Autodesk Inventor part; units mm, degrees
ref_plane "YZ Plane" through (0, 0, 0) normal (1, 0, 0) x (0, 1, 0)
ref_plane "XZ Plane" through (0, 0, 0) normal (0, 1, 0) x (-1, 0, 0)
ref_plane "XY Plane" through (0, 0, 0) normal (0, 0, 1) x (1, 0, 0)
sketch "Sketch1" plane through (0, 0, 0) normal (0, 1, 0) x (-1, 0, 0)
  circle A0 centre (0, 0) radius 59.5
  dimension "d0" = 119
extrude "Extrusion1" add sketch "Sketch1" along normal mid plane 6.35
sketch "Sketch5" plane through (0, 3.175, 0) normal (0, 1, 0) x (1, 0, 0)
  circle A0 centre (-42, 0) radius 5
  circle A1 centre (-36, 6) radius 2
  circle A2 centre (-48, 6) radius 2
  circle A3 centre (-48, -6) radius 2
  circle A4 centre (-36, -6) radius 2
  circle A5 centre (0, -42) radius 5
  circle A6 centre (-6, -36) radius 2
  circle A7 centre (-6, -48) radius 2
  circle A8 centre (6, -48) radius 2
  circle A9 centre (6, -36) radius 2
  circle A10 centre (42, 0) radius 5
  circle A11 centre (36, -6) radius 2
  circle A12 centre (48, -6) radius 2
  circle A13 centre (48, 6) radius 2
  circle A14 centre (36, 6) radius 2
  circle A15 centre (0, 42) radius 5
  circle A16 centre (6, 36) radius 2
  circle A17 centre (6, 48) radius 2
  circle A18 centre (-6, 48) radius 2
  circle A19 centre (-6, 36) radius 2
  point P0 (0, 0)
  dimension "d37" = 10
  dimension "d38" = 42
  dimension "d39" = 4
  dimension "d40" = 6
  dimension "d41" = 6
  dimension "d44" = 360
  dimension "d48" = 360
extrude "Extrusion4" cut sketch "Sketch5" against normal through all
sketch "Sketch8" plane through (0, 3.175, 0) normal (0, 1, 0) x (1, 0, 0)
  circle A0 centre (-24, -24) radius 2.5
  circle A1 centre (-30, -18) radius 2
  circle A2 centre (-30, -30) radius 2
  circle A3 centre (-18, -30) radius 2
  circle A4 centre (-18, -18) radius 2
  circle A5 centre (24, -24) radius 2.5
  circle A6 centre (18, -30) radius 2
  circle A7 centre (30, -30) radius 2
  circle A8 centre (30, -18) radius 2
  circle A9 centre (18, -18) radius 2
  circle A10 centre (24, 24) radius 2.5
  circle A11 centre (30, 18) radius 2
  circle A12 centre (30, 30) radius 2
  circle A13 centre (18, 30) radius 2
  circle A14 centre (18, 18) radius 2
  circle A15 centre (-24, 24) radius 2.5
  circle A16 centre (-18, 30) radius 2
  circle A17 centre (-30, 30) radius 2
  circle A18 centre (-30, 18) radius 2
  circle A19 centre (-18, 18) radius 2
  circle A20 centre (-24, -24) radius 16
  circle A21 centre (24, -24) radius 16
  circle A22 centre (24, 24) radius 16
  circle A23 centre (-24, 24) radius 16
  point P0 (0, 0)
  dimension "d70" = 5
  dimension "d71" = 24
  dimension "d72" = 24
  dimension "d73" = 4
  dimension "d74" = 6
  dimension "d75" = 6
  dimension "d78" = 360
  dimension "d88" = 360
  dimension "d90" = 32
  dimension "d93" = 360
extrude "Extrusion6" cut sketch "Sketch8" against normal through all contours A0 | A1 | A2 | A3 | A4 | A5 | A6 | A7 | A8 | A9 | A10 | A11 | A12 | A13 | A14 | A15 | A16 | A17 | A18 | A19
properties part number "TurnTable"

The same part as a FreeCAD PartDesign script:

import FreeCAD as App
import Part
import Sketcher
from FreeCAD import Vector

doc = App.newDocument("Part")
body = doc.addObject("PartDesign::Body", "Body")

sketch1 = doc.addObject("Sketcher::SketchObject", "Sketch")
body.addObject(sketch1)
sketch1.AttachmentSupport = (doc.XZ_Plane, [""])
sketch1.MapMode = "FlatFace"
sketch1.addGeometry(Part.Circle(Vector(0, 0, 0), Vector(0, 0, 1), 60), False)
sketch1.addConstraint(Sketcher.Constraint("Coincident", 0, 3, -1, 1))
sketch1.addConstraint(Sketcher.Constraint("Diameter", 0, 119.0))
pad1 = doc.addObject("PartDesign::Pad", "Pad")
body.addObject(pad1)
pad1.Profile = sketch1
pad1.Length = 6.35
pad1.Midplane = True

sketch2 = doc.addObject("Sketcher::SketchObject", "Sketch001")
body.addObject(sketch2)
sketch2.AttachmentSupport = (doc.XZ_Plane, [""])
sketch2.MapMode = "FlatFace"
sketch2.AttachmentOffset = App.Placement(Vector(0, 0, -3.175), App.Rotation())
sketch2.addGeometry(Part.Circle(Vector(-42, 0, 0), Vector(0, 0, 1), 5), False)
sketch2.addGeometry(Part.Circle(Vector(-36, -6, 0), Vector(0, 0, 1), 2), False)
sketch2.addGeometry(Part.Circle(Vector(-48, -6, 0), Vector(0, 0, 1), 2), False)
sketch2.addGeometry(Part.Circle(Vector(-48, 6, 0), Vector(0, 0, 1), 2), False)
sketch2.addGeometry(Part.Circle(Vector(-36, 6, 0), Vector(0, 0, 1), 2), False)
sketch2.addGeometry(Part.Circle(Vector(0, 42, 0), Vector(0, 0, 1), 5), False)
sketch2.addGeometry(Part.Circle(Vector(-6, 36, 0), Vector(0, 0, 1), 2), False)
sketch2.addGeometry(Part.Circle(Vector(-6, 48, 0), Vector(0, 0, 1), 2), False)
sketch2.addGeometry(Part.Circle(Vector(6, 48, 0), Vector(0, 0, 1), 2), False)
sketch2.addGeometry(Part.Circle(Vector(6, 36, 0), Vector(0, 0, 1), 2), False)
sketch2.addGeometry(Part.Circle(Vector(42, 0, 0), Vector(0, 0, 1), 5), False)
sketch2.addGeometry(Part.Circle(Vector(36, 6, 0), Vector(0, 0, 1), 2), False)
sketch2.addGeometry(Part.Circle(Vector(48, 6, 0), Vector(0, 0, 1), 2), False)
sketch2.addGeometry(Part.Circle(Vector(48, -6, 0), Vector(0, 0, 1), 2), False)
sketch2.addGeometry(Part.Circle(Vector(36, -6, 0), Vector(0, 0, 1), 2), False)
sketch2.addGeometry(Part.Circle(Vector(0, -42, 0), Vector(0, 0, 1), 5), False)
sketch2.addGeometry(Part.Circle(Vector(6, -36, 0), Vector(0, 0, 1), 2), False)
sketch2.addGeometry(Part.Circle(Vector(6, -48, 0), Vector(0, 0, 1), 2), False)
sketch2.addGeometry(Part.Circle(Vector(-6, -48, 0), Vector(0, 0, 1), 2), False)
sketch2.addGeometry(Part.Circle(Vector(-6, -36, 0), Vector(0, 0, 1), 2), False)
sketch2.addConstraint(Sketcher.Constraint("Equal", 1, 2))
sketch2.addConstraint(Sketcher.Constraint("Equal", 2, 3))
sketch2.addConstraint(Sketcher.Constraint("Equal", 3, 4))
sketch2.addConstraint(Sketcher.Constraint("Equal", 0, 5))
sketch2.addConstraint(Sketcher.Constraint("Equal", 4, 6))
sketch2.addConstraint(Sketcher.Constraint("Equal", 6, 7))
sketch2.addConstraint(Sketcher.Constraint("Equal", 7, 8))
sketch2.addConstraint(Sketcher.Constraint("Equal", 8, 9))
sketch2.addConstraint(Sketcher.Constraint("Equal", 5, 10))
sketch2.addConstraint(Sketcher.Constraint("Equal", 9, 11))
sketch2.addConstraint(Sketcher.Constraint("Equal", 11, 12))
sketch2.addConstraint(Sketcher.Constraint("Equal", 12, 13))
sketch2.addConstraint(Sketcher.Constraint("Equal", 13, 14))
sketch2.addConstraint(Sketcher.Constraint("Equal", 10, 15))
sketch2.addConstraint(Sketcher.Constraint("Equal", 14, 16))
sketch2.addConstraint(Sketcher.Constraint("Equal", 16, 17))
sketch2.addConstraint(Sketcher.Constraint("Equal", 17, 18))
sketch2.addConstraint(Sketcher.Constraint("Equal", 18, 19))
sketch2.addConstraint(Sketcher.Constraint("Symmetric", 0, 3, 10, 3, -1, 1))
sketch2.addConstraint(Sketcher.Constraint("Symmetric", 1, 3, 11, 3, -1, 1))
sketch2.addConstraint(Sketcher.Constraint("Symmetric", 2, 3, 12, 3, -1, 1))
sketch2.addConstraint(Sketcher.Constraint("Symmetric", 3, 3, 13, 3, -1, 1))
sketch2.addConstraint(Sketcher.Constraint("Symmetric", 4, 3, 14, 3, -1, 1))
sketch2.addConstraint(Sketcher.Constraint("Symmetric", 5, 3, 15, 3, -1, 1))
sketch2.addConstraint(Sketcher.Constraint("Symmetric", 6, 3, 16, 3, -1, 1))
sketch2.addConstraint(Sketcher.Constraint("Symmetric", 7, 3, 17, 3, -1, 1))
sketch2.addConstraint(Sketcher.Constraint("Symmetric", 8, 3, 18, 3, -1, 1))
sketch2.addConstraint(Sketcher.Constraint("Symmetric", 9, 3, 19, 3, -1, 1))
sketch2.addConstraint(Sketcher.Constraint("Symmetric", 7, 3, 8, 3, -2))
sketch2.addConstraint(Sketcher.Constraint("Symmetric", 6, 3, 9, 3, -2))
sketch2.addConstraint(Sketcher.Constraint("Symmetric", 4, 3, 11, 3, -2))
sketch2.addConstraint(Sketcher.Constraint("Symmetric", 3, 3, 12, 3, -2))
sketch2.addConstraint(Sketcher.Constraint("PointOnObject", 0, 3, -1))
sketch2.addConstraint(Sketcher.Constraint("PointOnObject", 5, 3, -2))
sketch2.addConstraint(Sketcher.Constraint("Horizontal", 1, 3, 2, 3))
sketch2.addConstraint(Sketcher.Constraint("Vertical", 6, 3, 7, 3))
sketch2.addConstraint(Sketcher.Constraint("Diameter", 0, 10.0))
sketch2.addConstraint(Sketcher.Constraint("Diameter", 1, 4.0))
sketch2.addConstraint(Sketcher.Constraint("DistanceX", 0, 3, -1, 1, 42.0))
sketch2.addConstraint(Sketcher.Constraint("DistanceY", 1, 3, -1, 1, 6.0))
sketch2.addConstraint(Sketcher.Constraint("DistanceY", -1, 1, 5, 3, 42.0))
sketch2.addConstraint(Sketcher.Constraint("DistanceX", 6, 3, -1, 1, 6.0))
sketch2.addConstraint(Sketcher.Constraint("DistanceX", 0, 3, 1, 3, 6.0))
sketch2.addConstraint(Sketcher.Constraint("DistanceX", 2, 3, 0, 3, 6.0))
sketch2.addConstraint(Sketcher.Constraint("DistanceY", 6, 3, 5, 3, 6.0))
sketch2.addConstraint(Sketcher.Constraint("DistanceY", 5, 3, 7, 3, 6.0))
pocket1 = doc.addObject("PartDesign::Pocket", "Pocket")
body.addObject(pocket1)
pocket1.Profile = sketch2
pocket1.Type = "ThroughAll"
pocket1.Reversed = True

sketch3 = doc.addObject("Sketcher::SketchObject", "Sketch002")
body.addObject(sketch3)
sketch3.AttachmentSupport = (doc.XZ_Plane, [""])
sketch3.MapMode = "FlatFace"
sketch3.AttachmentOffset = App.Placement(Vector(0, 0, -3.175), App.Rotation())
sketch3.addGeometry(Part.Circle(Vector(-24, 24, 0), Vector(0, 0, 1), 2.5), False)
sketch3.addGeometry(Part.Circle(Vector(-30, 18, 0), Vector(0, 0, 1), 2), False)
sketch3.addGeometry(Part.Circle(Vector(-30, 30, 0), Vector(0, 0, 1), 2), False)
sketch3.addGeometry(Part.Circle(Vector(-18, 30, 0), Vector(0, 0, 1), 2), False)
sketch3.addGeometry(Part.Circle(Vector(-18, 18, 0), Vector(0, 0, 1), 2), False)
sketch3.addGeometry(Part.Circle(Vector(24, 24, 0), Vector(0, 0, 1), 2.5), False)
sketch3.addGeometry(Part.Circle(Vector(18, 30, 0), Vector(0, 0, 1), 2), False)
sketch3.addGeometry(Part.Circle(Vector(30, 30, 0), Vector(0, 0, 1), 2), False)
sketch3.addGeometry(Part.Circle(Vector(30, 18, 0), Vector(0, 0, 1), 2), False)
sketch3.addGeometry(Part.Circle(Vector(18, 18, 0), Vector(0, 0, 1), 2), False)
sketch3.addGeometry(Part.Circle(Vector(24, -24, 0), Vector(0, 0, 1), 2.5), False)
sketch3.addGeometry(Part.Circle(Vector(30, -18, 0), Vector(0, 0, 1), 2), False)
sketch3.addGeometry(Part.Circle(Vector(30, -30, 0), Vector(0, 0, 1), 2), False)
sketch3.addGeometry(Part.Circle(Vector(18, -30, 0), Vector(0, 0, 1), 2), False)
sketch3.addGeometry(Part.Circle(Vector(18, -18, 0), Vector(0, 0, 1), 2), False)
sketch3.addGeometry(Part.Circle(Vector(-24, -24, 0), Vector(0, 0, 1), 2.5), False)
sketch3.addGeometry(Part.Circle(Vector(-18, -30, 0), Vector(0, 0, 1), 2), False)
sketch3.addGeometry(Part.Circle(Vector(-30, -30, 0), Vector(0, 0, 1), 2), False)
sketch3.addGeometry(Part.Circle(Vector(-30, -18, 0), Vector(0, 0, 1), 2), False)
sketch3.addGeometry(Part.Circle(Vector(-18, -18, 0), Vector(0, 0, 1), 2), False)
sketch3.addConstraint(Sketcher.Constraint("Equal", 1, 2))
sketch3.addConstraint(Sketcher.Constraint("Equal", 2, 3))
sketch3.addConstraint(Sketcher.Constraint("Equal", 3, 4))
sketch3.addConstraint(Sketcher.Constraint("Equal", 0, 5))
sketch3.addConstraint(Sketcher.Constraint("Equal", 4, 6))
sketch3.addConstraint(Sketcher.Constraint("Equal", 6, 7))
sketch3.addConstraint(Sketcher.Constraint("Equal", 7, 8))
sketch3.addConstraint(Sketcher.Constraint("Equal", 8, 9))
sketch3.addConstraint(Sketcher.Constraint("Equal", 5, 10))
sketch3.addConstraint(Sketcher.Constraint("Equal", 9, 11))
sketch3.addConstraint(Sketcher.Constraint("Equal", 11, 12))
sketch3.addConstraint(Sketcher.Constraint("Equal", 12, 13))
sketch3.addConstraint(Sketcher.Constraint("Equal", 13, 14))
sketch3.addConstraint(Sketcher.Constraint("Equal", 10, 15))
sketch3.addConstraint(Sketcher.Constraint("Equal", 14, 16))
sketch3.addConstraint(Sketcher.Constraint("Equal", 16, 17))
sketch3.addConstraint(Sketcher.Constraint("Equal", 17, 18))
sketch3.addConstraint(Sketcher.Constraint("Equal", 18, 19))
sketch3.addConstraint(Sketcher.Constraint("Symmetric", 0, 3, 10, 3, -1, 1))
sketch3.addConstraint(Sketcher.Constraint("Symmetric", 1, 3, 11, 3, -1, 1))
sketch3.addConstraint(Sketcher.Constraint("Symmetric", 2, 3, 12, 3, -1, 1))
sketch3.addConstraint(Sketcher.Constraint("Symmetric", 3, 3, 13, 3, -1, 1))
sketch3.addConstraint(Sketcher.Constraint("Symmetric", 4, 3, 14, 3, -1, 1))
sketch3.addConstraint(Sketcher.Constraint("Symmetric", 5, 3, 15, 3, -1, 1))
sketch3.addConstraint(Sketcher.Constraint("Symmetric", 6, 3, 16, 3, -1, 1))
sketch3.addConstraint(Sketcher.Constraint("Symmetric", 7, 3, 17, 3, -1, 1))
sketch3.addConstraint(Sketcher.Constraint("Symmetric", 8, 3, 18, 3, -1, 1))
sketch3.addConstraint(Sketcher.Constraint("Symmetric", 9, 3, 19, 3, -1, 1))
sketch3.addConstraint(Sketcher.Constraint("Symmetric", 0, 3, 5, 3, -2))
sketch3.addConstraint(Sketcher.Constraint("Symmetric", 3, 3, 6, 3, -2))
sketch3.addConstraint(Sketcher.Constraint("Symmetric", 2, 3, 7, 3, -2))
sketch3.addConstraint(Sketcher.Constraint("Symmetric", 1, 3, 8, 3, -2))
sketch3.addConstraint(Sketcher.Constraint("Symmetric", 4, 3, 9, 3, -2))
sketch3.addConstraint(Sketcher.Constraint("Horizontal", 2, 3, 3, 3))
sketch3.addConstraint(Sketcher.Constraint("Horizontal", 1, 3, 4, 3))
sketch3.addConstraint(Sketcher.Constraint("Vertical", 1, 3, 2, 3))
sketch3.addConstraint(Sketcher.Constraint("Vertical", 3, 3, 4, 3))
sketch3.addConstraint(Sketcher.Constraint("Diameter", 0, 5.0))
sketch3.addConstraint(Sketcher.Constraint("Diameter", 1, 4.0))
sketch3.addConstraint(Sketcher.Constraint("DistanceX", 0, 3, -1, 1, 24.0))
sketch3.addConstraint(Sketcher.Constraint("DistanceY", -1, 1, 0, 3, 24.0))
sketch3.addConstraint(Sketcher.Constraint("DistanceX", 1, 3, 0, 3, 6.0))
sketch3.addConstraint(Sketcher.Constraint("DistanceY", 1, 3, 0, 3, 6.0))
sketch3.addConstraint(Sketcher.Constraint("DistanceY", 0, 3, 2, 3, 6.0))
sketch3.addConstraint(Sketcher.Constraint("DistanceX", 0, 3, 3, 3, 6.0))
pocket2 = doc.addObject("PartDesign::Pocket", "Pocket001")
body.addObject(pocket2)
pocket2.Profile = sketch3
pocket2.Type = "ThroughAll"
pocket2.Reversed = True

doc.recompute()
